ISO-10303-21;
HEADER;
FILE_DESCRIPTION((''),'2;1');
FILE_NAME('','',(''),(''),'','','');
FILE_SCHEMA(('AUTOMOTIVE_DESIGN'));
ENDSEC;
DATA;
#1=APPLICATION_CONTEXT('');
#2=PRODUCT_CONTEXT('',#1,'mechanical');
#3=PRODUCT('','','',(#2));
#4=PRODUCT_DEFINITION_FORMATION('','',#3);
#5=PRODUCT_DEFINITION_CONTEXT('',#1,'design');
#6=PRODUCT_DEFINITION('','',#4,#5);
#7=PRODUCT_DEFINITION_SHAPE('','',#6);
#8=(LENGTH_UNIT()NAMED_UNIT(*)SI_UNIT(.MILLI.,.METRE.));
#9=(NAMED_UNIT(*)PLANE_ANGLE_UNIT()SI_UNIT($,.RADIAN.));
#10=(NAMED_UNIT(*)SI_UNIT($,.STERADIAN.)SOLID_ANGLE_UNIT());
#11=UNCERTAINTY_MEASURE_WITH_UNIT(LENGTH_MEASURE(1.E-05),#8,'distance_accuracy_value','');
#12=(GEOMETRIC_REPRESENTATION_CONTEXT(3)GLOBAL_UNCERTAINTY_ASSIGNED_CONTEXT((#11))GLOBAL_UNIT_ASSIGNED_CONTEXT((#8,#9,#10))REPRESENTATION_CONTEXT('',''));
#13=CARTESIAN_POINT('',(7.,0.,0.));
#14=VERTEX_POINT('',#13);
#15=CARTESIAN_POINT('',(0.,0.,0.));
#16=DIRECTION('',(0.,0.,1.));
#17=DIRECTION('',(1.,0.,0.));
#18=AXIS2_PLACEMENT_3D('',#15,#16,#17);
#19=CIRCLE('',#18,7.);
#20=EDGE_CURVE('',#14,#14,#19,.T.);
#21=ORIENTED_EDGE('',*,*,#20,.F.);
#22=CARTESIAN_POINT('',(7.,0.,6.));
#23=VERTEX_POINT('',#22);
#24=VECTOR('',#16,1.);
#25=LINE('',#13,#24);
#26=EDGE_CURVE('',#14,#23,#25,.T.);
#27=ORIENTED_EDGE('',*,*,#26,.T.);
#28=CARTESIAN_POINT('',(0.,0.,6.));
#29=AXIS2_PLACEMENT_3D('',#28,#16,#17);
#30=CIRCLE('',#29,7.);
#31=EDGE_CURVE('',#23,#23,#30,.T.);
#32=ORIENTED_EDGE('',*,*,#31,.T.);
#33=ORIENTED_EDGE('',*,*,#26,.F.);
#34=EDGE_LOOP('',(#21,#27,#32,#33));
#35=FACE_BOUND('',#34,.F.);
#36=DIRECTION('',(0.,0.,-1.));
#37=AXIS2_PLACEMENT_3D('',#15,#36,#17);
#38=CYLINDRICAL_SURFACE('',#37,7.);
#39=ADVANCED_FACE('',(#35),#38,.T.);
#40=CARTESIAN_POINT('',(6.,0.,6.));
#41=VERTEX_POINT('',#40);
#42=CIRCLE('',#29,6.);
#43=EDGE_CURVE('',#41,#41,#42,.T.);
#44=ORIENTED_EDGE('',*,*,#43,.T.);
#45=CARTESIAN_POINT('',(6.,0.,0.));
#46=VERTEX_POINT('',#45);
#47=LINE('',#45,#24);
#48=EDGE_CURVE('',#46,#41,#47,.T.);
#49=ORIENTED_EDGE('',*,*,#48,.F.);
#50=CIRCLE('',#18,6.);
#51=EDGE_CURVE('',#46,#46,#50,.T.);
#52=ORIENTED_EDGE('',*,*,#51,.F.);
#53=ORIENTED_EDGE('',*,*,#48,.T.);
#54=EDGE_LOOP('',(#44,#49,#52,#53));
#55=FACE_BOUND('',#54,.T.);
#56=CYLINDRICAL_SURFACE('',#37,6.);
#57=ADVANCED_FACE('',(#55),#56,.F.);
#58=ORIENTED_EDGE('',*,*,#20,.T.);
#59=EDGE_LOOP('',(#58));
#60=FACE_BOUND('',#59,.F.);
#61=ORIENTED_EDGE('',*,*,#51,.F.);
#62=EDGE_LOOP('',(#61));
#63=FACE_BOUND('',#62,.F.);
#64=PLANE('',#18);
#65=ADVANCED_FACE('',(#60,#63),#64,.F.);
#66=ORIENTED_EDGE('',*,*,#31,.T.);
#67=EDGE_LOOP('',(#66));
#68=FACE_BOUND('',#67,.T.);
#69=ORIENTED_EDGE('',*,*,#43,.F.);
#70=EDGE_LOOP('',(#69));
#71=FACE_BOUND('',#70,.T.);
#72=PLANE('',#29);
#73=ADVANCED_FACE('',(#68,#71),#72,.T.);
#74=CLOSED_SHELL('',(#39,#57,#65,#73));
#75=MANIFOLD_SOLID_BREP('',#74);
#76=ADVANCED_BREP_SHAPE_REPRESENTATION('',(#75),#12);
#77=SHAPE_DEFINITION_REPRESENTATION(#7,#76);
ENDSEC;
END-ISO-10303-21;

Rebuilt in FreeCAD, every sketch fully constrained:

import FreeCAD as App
import Part
import Sketcher
Q = App.Units.Quantity

doc = App.newDocument("Part")
params = doc.addObject("Spreadsheet::Sheet", "Params")
for row, (alias, value) in enumerate([
    ("sketch1_diameter", "14 mm"),
    ("sketch1_diameter2", "12 mm"),
    ("pad1_length", "6 mm"),
], start=1):
    params.set(f"A{row}", alias)
    params.set(f"B{row}", "=" + value)
    params.setAlias(f"B{row}", alias)

body = doc.addObject("PartDesign::Body", "Body")

# Sketch on XY plane
sketch1 = body.newObject("Sketcher::SketchObject", "Sketch")
sketch1.AttachmentSupport = (doc.getObject("XY_Plane"), [""])
sketch1.MapMode = "FlatFace"
sketch1.addGeometry([
    Part.Circle(App.Vector(0, 0, 0), App.Vector(0, 0, 1), 7),
    Part.Circle(App.Vector(0, 0, 0), App.Vector(0, 0, 1), 6),
], False)
sketch1.addConstraint([
    Sketcher.Constraint("Coincident", 0, 3, -1, 1),
    Sketcher.Constraint("Coincident", 1, 3, -1, 1),
    Sketcher.Constraint("Diameter", 0, Q("14 mm")),
    Sketcher.Constraint("Diameter", 1, Q("12 mm")),
])
sketch1.setExpression("Constraints[2]", "Params.sketch1_diameter")
sketch1.setExpression("Constraints[3]", "Params.sketch1_diameter2")
pad1 = body.newObject("PartDesign::Pad", "Pad")
pad1.Profile = sketch1
pad1.setExpression("Length", "Params.pad1_length")

doc.recompute()
